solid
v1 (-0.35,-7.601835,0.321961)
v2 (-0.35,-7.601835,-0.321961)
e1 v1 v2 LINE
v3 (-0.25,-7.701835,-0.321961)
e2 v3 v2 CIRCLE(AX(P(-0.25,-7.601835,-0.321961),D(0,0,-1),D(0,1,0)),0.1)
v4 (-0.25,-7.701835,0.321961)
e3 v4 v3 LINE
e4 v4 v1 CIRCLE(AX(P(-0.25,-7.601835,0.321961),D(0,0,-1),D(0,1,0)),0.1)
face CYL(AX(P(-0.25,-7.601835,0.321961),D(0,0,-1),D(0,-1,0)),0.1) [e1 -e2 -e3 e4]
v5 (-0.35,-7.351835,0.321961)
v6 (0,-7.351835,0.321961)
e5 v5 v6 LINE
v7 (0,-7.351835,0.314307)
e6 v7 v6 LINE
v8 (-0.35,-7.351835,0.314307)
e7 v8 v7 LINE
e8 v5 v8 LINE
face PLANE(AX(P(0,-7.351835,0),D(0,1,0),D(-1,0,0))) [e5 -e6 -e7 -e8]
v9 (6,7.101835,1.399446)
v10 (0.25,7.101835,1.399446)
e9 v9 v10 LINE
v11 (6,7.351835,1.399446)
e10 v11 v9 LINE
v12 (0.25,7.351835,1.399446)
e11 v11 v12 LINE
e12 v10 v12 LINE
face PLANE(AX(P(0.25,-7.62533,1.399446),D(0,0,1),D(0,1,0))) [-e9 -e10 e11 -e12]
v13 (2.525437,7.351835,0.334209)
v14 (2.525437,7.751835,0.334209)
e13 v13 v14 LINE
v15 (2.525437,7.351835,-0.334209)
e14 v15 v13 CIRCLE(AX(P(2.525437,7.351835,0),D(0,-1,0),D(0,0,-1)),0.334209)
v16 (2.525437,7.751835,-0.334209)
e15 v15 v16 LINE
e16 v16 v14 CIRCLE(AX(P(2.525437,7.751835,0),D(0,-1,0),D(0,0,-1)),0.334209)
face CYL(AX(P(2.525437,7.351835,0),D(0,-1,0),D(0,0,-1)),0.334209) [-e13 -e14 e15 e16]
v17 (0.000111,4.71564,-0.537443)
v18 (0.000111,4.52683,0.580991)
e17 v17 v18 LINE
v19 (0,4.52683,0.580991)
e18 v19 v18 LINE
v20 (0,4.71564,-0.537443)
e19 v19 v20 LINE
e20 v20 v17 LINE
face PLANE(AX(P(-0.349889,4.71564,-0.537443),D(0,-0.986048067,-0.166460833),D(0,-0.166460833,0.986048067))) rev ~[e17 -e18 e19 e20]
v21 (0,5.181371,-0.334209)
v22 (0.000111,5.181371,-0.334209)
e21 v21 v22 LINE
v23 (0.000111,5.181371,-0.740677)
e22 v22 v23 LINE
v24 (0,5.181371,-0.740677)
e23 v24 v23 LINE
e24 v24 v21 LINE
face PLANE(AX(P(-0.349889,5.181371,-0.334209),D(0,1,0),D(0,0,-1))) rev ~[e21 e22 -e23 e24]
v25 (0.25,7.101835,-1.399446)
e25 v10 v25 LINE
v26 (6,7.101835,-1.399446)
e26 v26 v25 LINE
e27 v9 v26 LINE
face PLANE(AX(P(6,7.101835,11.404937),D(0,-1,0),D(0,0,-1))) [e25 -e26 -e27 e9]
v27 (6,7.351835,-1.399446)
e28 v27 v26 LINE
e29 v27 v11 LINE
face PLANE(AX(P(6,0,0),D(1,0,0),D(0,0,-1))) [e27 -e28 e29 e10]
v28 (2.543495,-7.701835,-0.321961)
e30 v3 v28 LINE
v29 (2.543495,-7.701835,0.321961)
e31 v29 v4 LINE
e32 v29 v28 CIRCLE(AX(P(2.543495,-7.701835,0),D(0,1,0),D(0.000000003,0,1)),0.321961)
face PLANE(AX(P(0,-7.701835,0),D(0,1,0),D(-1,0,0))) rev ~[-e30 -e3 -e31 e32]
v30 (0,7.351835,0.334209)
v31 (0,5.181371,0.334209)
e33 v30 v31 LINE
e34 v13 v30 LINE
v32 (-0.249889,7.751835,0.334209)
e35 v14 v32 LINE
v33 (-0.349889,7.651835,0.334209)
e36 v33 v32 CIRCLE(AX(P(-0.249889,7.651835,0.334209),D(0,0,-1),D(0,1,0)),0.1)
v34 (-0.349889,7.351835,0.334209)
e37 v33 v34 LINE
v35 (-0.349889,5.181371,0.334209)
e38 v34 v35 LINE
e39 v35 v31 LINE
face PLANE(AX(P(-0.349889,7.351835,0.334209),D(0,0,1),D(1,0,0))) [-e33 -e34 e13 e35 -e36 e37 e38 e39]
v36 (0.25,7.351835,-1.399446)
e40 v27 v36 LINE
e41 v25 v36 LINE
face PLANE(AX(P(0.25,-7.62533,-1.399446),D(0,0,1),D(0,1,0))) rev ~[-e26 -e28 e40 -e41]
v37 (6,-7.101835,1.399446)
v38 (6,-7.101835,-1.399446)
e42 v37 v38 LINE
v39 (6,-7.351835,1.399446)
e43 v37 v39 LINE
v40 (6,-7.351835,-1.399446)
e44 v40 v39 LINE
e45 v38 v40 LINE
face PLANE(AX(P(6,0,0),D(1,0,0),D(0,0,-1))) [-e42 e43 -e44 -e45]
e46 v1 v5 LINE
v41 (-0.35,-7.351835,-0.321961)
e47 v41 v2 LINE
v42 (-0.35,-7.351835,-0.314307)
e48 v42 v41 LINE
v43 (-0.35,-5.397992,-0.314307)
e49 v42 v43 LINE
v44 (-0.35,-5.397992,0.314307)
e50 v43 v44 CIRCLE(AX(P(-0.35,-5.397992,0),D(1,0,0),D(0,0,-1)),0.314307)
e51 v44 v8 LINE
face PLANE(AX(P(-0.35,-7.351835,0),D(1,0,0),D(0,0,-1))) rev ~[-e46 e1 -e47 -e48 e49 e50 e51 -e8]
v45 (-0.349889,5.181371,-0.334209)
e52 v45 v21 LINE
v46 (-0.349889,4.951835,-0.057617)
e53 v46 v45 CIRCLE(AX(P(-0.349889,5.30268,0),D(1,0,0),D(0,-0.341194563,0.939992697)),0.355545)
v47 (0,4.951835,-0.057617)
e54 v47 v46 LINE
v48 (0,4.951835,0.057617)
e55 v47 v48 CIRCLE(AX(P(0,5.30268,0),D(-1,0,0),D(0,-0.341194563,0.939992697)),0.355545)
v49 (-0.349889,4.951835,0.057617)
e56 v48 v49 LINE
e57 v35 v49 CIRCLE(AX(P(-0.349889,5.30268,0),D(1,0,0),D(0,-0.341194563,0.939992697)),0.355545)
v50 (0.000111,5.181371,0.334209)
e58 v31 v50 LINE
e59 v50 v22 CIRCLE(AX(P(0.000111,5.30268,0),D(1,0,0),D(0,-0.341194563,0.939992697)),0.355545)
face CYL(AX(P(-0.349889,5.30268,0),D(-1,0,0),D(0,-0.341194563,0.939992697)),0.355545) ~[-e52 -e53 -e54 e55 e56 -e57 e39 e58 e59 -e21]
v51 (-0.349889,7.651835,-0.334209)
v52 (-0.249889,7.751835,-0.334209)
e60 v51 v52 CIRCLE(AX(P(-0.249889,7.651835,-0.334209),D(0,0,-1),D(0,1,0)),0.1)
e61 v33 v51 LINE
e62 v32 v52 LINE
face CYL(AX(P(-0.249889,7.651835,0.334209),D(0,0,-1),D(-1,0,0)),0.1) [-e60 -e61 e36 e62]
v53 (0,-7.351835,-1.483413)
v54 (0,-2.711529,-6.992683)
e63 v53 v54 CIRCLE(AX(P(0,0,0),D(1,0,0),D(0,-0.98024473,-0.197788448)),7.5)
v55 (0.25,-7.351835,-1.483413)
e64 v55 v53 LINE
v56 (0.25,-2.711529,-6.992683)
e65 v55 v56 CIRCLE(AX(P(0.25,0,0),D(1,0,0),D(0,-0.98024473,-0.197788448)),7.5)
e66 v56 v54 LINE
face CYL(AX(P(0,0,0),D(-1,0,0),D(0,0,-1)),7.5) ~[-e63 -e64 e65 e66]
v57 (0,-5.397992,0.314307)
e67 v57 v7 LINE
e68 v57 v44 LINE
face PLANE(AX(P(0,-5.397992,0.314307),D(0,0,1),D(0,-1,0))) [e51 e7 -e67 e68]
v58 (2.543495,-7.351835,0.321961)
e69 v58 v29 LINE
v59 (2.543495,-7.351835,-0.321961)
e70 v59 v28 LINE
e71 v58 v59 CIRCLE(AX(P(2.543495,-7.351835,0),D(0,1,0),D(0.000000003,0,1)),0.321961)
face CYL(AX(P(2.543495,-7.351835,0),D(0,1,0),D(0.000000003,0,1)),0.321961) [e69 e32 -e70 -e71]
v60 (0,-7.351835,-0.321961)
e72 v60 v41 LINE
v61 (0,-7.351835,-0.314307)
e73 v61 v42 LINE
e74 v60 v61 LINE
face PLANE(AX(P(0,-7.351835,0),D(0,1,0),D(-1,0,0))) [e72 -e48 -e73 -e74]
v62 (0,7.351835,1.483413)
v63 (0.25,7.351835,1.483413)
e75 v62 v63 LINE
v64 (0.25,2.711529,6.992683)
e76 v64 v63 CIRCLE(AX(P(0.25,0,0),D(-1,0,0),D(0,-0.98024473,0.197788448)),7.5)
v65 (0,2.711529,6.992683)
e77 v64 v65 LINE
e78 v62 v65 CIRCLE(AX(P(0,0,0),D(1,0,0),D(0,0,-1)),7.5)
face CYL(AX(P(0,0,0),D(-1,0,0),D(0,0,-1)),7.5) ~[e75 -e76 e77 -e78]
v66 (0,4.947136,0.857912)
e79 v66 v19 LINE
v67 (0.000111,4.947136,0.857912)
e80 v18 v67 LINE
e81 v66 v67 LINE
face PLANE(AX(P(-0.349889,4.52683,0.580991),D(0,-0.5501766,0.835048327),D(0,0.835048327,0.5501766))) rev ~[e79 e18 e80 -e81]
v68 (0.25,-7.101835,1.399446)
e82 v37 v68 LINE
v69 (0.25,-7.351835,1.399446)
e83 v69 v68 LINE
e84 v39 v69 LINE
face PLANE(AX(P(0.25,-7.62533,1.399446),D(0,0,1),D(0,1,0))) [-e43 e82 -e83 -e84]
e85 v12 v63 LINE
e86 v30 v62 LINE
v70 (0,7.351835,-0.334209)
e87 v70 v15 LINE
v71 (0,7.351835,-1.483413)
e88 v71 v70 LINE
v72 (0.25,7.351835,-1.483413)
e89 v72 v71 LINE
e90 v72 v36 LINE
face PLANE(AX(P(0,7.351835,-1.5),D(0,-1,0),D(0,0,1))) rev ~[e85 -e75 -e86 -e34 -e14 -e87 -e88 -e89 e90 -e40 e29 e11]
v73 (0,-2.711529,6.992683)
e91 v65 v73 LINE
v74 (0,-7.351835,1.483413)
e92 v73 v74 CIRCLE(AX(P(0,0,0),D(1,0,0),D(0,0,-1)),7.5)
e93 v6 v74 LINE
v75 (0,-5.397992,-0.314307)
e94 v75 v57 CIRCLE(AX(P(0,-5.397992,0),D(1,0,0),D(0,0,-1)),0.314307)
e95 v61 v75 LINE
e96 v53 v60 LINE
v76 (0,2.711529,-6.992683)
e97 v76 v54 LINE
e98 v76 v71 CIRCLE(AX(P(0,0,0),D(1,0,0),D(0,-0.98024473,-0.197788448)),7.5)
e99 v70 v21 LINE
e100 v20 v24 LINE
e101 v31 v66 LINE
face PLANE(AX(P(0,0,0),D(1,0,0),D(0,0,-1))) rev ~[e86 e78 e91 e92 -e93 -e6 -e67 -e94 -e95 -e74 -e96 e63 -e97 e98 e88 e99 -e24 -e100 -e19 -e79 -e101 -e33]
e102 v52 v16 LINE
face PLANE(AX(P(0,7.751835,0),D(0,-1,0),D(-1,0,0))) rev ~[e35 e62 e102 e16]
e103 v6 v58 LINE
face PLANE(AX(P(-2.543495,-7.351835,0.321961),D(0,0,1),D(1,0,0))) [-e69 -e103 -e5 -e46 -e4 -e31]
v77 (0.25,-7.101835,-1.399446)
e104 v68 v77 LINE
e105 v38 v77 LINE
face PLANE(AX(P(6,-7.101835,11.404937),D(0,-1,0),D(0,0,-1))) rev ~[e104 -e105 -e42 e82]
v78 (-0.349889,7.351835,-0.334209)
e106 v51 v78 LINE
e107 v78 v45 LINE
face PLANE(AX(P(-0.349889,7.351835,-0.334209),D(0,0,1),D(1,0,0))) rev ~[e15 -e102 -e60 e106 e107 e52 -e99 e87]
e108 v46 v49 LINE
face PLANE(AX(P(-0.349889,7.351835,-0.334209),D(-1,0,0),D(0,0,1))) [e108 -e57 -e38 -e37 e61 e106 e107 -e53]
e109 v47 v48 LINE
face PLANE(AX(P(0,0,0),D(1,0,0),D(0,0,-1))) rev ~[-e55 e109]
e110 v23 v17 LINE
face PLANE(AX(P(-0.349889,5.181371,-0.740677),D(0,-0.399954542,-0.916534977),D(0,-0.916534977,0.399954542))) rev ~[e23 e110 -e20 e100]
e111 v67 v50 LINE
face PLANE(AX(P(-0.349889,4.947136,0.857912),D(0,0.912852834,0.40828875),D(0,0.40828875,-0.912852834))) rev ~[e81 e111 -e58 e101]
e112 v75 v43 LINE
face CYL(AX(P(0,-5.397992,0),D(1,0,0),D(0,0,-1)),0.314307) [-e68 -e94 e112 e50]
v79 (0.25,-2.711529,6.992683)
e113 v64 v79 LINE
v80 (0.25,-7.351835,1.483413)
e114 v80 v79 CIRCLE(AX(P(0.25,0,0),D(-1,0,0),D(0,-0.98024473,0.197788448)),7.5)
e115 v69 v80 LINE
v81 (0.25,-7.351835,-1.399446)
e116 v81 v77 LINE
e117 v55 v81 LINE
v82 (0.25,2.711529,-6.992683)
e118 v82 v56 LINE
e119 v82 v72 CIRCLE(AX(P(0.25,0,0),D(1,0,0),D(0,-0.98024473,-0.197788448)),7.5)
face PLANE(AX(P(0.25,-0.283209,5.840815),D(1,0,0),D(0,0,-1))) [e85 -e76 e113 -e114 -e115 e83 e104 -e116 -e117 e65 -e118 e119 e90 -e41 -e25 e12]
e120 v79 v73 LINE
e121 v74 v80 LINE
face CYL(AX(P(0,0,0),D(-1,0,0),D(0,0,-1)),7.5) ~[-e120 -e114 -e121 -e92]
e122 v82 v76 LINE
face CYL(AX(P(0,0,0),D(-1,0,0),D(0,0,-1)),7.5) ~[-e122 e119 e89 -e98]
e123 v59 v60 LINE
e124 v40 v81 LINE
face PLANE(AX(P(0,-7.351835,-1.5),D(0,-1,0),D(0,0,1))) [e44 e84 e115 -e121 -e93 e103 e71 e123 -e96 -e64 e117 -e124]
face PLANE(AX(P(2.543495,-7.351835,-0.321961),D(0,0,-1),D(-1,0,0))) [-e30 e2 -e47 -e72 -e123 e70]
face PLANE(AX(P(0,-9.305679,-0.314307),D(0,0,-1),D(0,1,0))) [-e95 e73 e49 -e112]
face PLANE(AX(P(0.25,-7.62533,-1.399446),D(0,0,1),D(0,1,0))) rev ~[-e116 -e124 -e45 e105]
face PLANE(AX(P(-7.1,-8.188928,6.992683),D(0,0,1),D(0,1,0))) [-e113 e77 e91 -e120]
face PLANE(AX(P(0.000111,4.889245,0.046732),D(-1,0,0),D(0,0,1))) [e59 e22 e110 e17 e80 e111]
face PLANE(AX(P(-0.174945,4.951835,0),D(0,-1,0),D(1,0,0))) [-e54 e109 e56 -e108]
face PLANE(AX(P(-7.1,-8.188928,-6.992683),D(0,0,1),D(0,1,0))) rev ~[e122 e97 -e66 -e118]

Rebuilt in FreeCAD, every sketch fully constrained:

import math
import FreeCAD as App
import Part
import Sketcher

V = App.Vector
Q = App.Units.Quantity


def edges_at(feature, points):
    """Names of the edges that pass closest to the given points."""
    edges = feature.Shape.Edges
    near = lambda p: min(range(len(edges)), key=lambda i: edges[i].distToShape(Part.Vertex(*p))[0])
    return sorted({f"Edge{near(p) + 1}" for p in points})

doc = App.newDocument("Part")
body = doc.addObject("PartDesign::Body", "Body")

# Sketch on YZ plane
sketch1 = body.newObject("Sketcher::SketchObject", "Sketch")
sketch1.AttachmentSupport = (doc.getObject("YZ_Plane"), [""])
sketch1.MapMode = "FlatFace"
sketch1.addGeometry(Part.Circle(V(0, 0, 0), V(0, 0, 1), 8), False)
sketch1.addConstraint(Sketcher.Constraint("Coincident", 0, 3, -1, 1))
sketch1.addConstraint(Sketcher.Constraint("Diameter", 0, Q("15 mm")))
pad1 = body.newObject("PartDesign::Pad", "Pad")
pad1.Profile = sketch1
pad1.Length = 6

# Sketch on YZ plane
sketch2 = body.newObject("Sketcher::SketchObject", "Sketch001")
sketch2.AttachmentSupport = (doc.getObject("YZ_Plane"), [""])
sketch2.MapMode = "FlatFace"
sketch2.addGeometry(Part.LineSegment(V(7.82, -1.5, 0), V(7.35, -1.5, 0)), False)
sketch2.addGeometry(Part.LineSegment(V(7.35, -1.5, 0), V(7.35, 1.5, 0)), False)
sketch2.addGeometry(Part.LineSegment(V(7.35, 1.5, 0), V(7.82, 1.5, 0)), False)
sketch2.addGeometry(Part.LineSegment(V(7.82, 1.5, 0), V(7.82, -1.5, 0)), False)
sketch2.addGeometry(Part.LineSegment(V(-7.35, -1.5, 0), V(-7.82, -1.5, 0)), False)
sketch2.addGeometry(Part.LineSegment(V(-7.82, -1.5, 0), V(-7.82, 1.5, 0)), False)
sketch2.addGeometry(Part.LineSegment(V(-7.82, 1.5, 0), V(-7.35, 1.5, 0)), False)
sketch2.addGeometry(Part.LineSegment(V(-7.35, 1.5, 0), V(-7.35, -1.5, 0)), False)
sketch2.addConstraint(Sketcher.Constraint("Coincident", 0, 2, 1, 1))
sketch2.addConstraint(Sketcher.Constraint("Coincident", 1, 2, 2, 1))
sketch2.addConstraint(Sketcher.Constraint("Coincident", 2, 2, 3, 1))
sketch2.addConstraint(Sketcher.Constraint("Coincident", 3, 2, 0, 1))
sketch2.addConstraint(Sketcher.Constraint("Coincident", 4, 2, 5, 1))
sketch2.addConstraint(Sketcher.Constraint("Coincident", 5, 2, 6, 1))
sketch2.addConstraint(Sketcher.Constraint("Coincident", 6, 2, 7, 1))
sketch2.addConstraint(Sketcher.Constraint("Coincident", 7, 2, 4, 1))
sketch2.addConstraint(Sketcher.Constraint("Horizontal", 0))
sketch2.addConstraint(Sketcher.Constraint("Vertical", 1))
sketch2.addConstraint(Sketcher.Constraint("Horizontal", 2))
sketch2.addConstraint(Sketcher.Constraint("Vertical", 3))
sketch2.addConstraint(Sketcher.Constraint("Horizontal", 4))
sketch2.addConstraint(Sketcher.Constraint("Vertical", 5))
sketch2.addConstraint(Sketcher.Constraint("Horizontal", 6))
sketch2.addConstraint(Sketcher.Constraint("Vertical", 7))
sketch2.addConstraint(Sketcher.Constraint("Symmetric", 2, 2, 4, 2, -1, 1))
sketch2.addConstraint(Sketcher.Constraint("Symmetric", 0, 2, 6, 2, -1, 1))
sketch2.addConstraint(Sketcher.Constraint("Horizontal", 3, 2, 4, 2))
sketch2.addConstraint(Sketcher.Constraint("DistanceY", 1, 1, 1, 2, Q("3 mm")))
sketch2.addConstraint(Sketcher.Constraint("DistanceX", 0, 2, 0, 1, Q("0.472136 mm")))
sketch2.addConstraint(Sketcher.Constraint("DistanceX", -1, 1, 2, 2, Q("7.823972 mm")))
pocket1 = body.newObject("PartDesign::Pocket", "Pocket")
pocket1.Profile = sketch2
pocket1.Length = 6
pocket1.Reversed = True

# Sketch on YZ plane
sketch3 = body.newObject("Sketcher::SketchObject", "Sketch002")
sketch3.AttachmentSupport = (doc.getObject("YZ_Plane"), [""])
sketch3.MapMode = "FlatFace"
sketch3.addGeometry(Part.LineSegment(V(7.35, -1.48, 0), V(7.1, -1.48, 0)), False)
sketch3.addGeometry(Part.LineSegment(V(7.1, -1.48, 0), V(7.1, 1.48, 0)), False)
sketch3.addGeometry(Part.LineSegment(V(7.1, 1.48, 0), V(7.35, 1.48, 0)), False)
sketch3.addGeometry(Part.LineSegment(V(7.35, 1.48, 0), V(7.35, -1.48, 0)), False)
sketch3.addGeometry(Part.LineSegment(V(-7.1, -1.48, 0), V(-7.35, -1.48, 0)), False)
sketch3.addGeometry(Part.LineSegment(V(-7.35, -1.48, 0), V(-7.35, 1.48, 0)), False)
sketch3.addGeometry(Part.LineSegment(V(-7.35, 1.48, 0), V(-7.1, 1.48, 0)), False)
sketch3.addGeometry(Part.LineSegment(V(-7.1, 1.48, 0), V(-7.1, -1.48, 0)), False)
sketch3.addConstraint(Sketcher.Constraint("Coincident", 0, 2, 1, 1))
sketch3.addConstraint(Sketcher.Constraint("Coincident", 1, 2, 2, 1))
sketch3.addConstraint(Sketcher.Constraint("Coincident", 2, 2, 3, 1))
sketch3.addConstraint(Sketcher.Constraint("Coincident", 3, 2, 0, 1))
sketch3.addConstraint(Sketcher.Constraint("Coincident", 4, 2, 5, 1))
sketch3.addConstraint(Sketcher.Constraint("Coincident", 5, 2, 6, 1))
sketch3.addConstraint(Sketcher.Constraint("Coincident", 6, 2, 7, 1))
sketch3.addConstraint(Sketcher.Constraint("Coincident", 7, 2, 4, 1))
sketch3.addConstraint(Sketcher.Constraint("Horizontal", 0))
sketch3.addConstraint(Sketcher.Constraint("Vertical", 1))
sketch3.addConstraint(Sketcher.Constraint("Horizontal", 2))
sketch3.addConstraint(Sketcher.Constraint("Vertical", 3))
sketch3.addConstraint(Sketcher.Constraint("Horizontal", 4))
sketch3.addConstraint(Sketcher.Constraint("Vertical", 5))
sketch3.addConstraint(Sketcher.Constraint("Horizontal", 6))
sketch3.addConstraint(Sketcher.Constraint("Vertical", 7))
sketch3.addConstraint(Sketcher.Constraint("Symmetric", 2, 2, 4, 2, -1, 1))
sketch3.addConstraint(Sketcher.Constraint("Symmetric", 0, 2, 6, 2, -1, 1))
sketch3.addConstraint(Sketcher.Constraint("Horizontal", 3, 2, 4, 2))
sketch3.addConstraint(Sketcher.Constraint("DistanceX", 0, 2, 0, 1, Q("0.25 mm")))
sketch3.addConstraint(Sketcher.Constraint("DistanceY", 1, 1, 1, 2, Q("2.966827 mm")))
sketch3.addConstraint(Sketcher.Constraint("DistanceX", 4, 2, 0, 2, Q("14.453671 mm")))
pad2 = body.newObject("PartDesign::Pad", "Pad001")
pad2.Profile = sketch3
pad2.Length = 5.75

# Sketch on YZ plane
sketch4 = body.newObject("Sketcher::SketchObject", "Sketch003")
sketch4.AttachmentSupport = (doc.getObject("YZ_Plane"), [""])
sketch4.MapMode = "FlatFace"
sketch4.AttachmentOffset = App.Placement(V(0, 0, 6), App.Rotation())
sketch4.addGeometry(Part.LineSegment(V(7, 11, 0), V(-7, 11, 0)), False)
sketch4.addGeometry(Part.LineSegment(V(-7, 11, 0), V(-7, -11, 0)), False)
sketch4.addGeometry(Part.LineSegment(V(-7, -11, 0), V(7, -11, 0)), False)
sketch4.addGeometry(Part.LineSegment(V(7, -11, 0), V(7, 11, 0)), False)
sketch4.addConstraint(Sketcher.Constraint("Coincident", 0, 2, 1, 1))
sketch4.addConstraint(Sketcher.Constraint("Coincident", 1, 2, 2, 1))
sketch4.addConstraint(Sketcher.Constraint("Coincident", 2, 2, 3, 1))
sketch4.addConstraint(Sketcher.Constraint("Coincident", 3, 2, 0, 1))
sketch4.addConstraint(Sketcher.Constraint("Horizontal", 0))
sketch4.addConstraint(Sketcher.Constraint("Vertical", 1))
sketch4.addConstraint(Sketcher.Constraint("Horizontal", 2))
sketch4.addConstraint(Sketcher.Constraint("Vertical", 3))
sketch4.addConstraint(Sketcher.Constraint("Symmetric", 0, 2, 2, 2, -1, 1))
sketch4.addConstraint(Sketcher.Constraint("DistanceX", 0, 2, 0, 1, Q("14.203671 mm")))
sketch4.addConstraint(Sketcher.Constraint("DistanceY", 1, 2, 1, 1, Q("22.809874 mm")))
pocket2 = body.newObject("PartDesign::Pocket", "Pocket001")
pocket2.Profile = sketch4
pocket2.Length = 5.75

# Sketch on YZ plane
sketch5 = body.newObject("Sketcher::SketchObject", "Sketch004")
sketch5.AttachmentSupport = (doc.getObject("YZ_Plane"), [""])
sketch5.MapMode = "FlatFace"
sketch5.AttachmentOffset = App.Placement(V(0, 0, 0.25), App.Rotation())
sketch5.addGeometry(Part.LineSegment(V(7.6, -1.4, 0), V(-7.6, -1.4, 0)), False)
sketch5.addGeometry(Part.LineSegment(V(-7.6, -1.4, 0), V(-7.6, -8.7, 0)), False)
sketch5.addGeometry(Part.LineSegment(V(-7.6, -8.7, 0), V(7.6, -8.7, 0)), False)
sketch5.addGeometry(Part.LineSegment(V(7.6, -8.7, 0), V(7.6, -1.4, 0)), False)
sketch5.addGeometry(Part.LineSegment(V(-7.6, 1.4, 0), V(7.6, 1.4, 0)), False)
sketch5.addGeometry(Part.LineSegment(V(7.6, 1.4, 0), V(7.4, 5.2, 0)), False)
sketch5.addGeometry(Part.LineSegment(V(7.4, 5.2, 0), V(8, 6.7, 0)), False)
sketch5.addGeometry(Part.LineSegment(V(8, 6.7, 0), V(6.8, 9.5, 0)), False)
sketch5.addGeometry(Part.LineSegment(V(6.8, 9.5, 0), V(-7.2, 11.4, 0)), False)
sketch5.addGeometry(Part.LineSegment(V(-7.2, 11.4, 0), V(-7.6, 1.4, 0)), False)
sketch5.addConstraint(Sketcher.Constraint("Coincident", 0, 2, 1, 1))
sketch5.addConstraint(Sketcher.Constraint("Coincident", 1, 2, 2, 1))
sketch5.addConstraint(Sketcher.Constraint("Coincident", 2, 2, 3, 1))
sketch5.addConstraint(Sketcher.Constraint("Coincident", 3, 2, 0, 1))
sketch5.addConstraint(Sketcher.Constraint("Coincident", 4, 2, 5, 1))
sketch5.addConstraint(Sketcher.Constraint("Coincident", 5, 2, 6, 1))
sketch5.addConstraint(Sketcher.Constraint("Coincident", 6, 2, 7, 1))
sketch5.addConstraint(Sketcher.Constraint("Coincident", 7, 2, 8, 1))
sketch5.addConstraint(Sketcher.Constraint("Coincident", 8, 2, 9, 1))
sketch5.addConstraint(Sketcher.Constraint("Coincident", 9, 2, 4, 1))
sketch5.addConstraint(Sketcher.Constraint("Horizontal", 0))
sketch5.addConstraint(Sketcher.Constraint("Vertical", 1))
sketch5.addConstraint(Sketcher.Constraint("Horizontal", 2))
sketch5.addConstraint(Sketcher.Constraint("Vertical", 3))
sketch5.addConstraint(Sketcher.Constraint("Horizontal", 4))
sketch5.addConstraint(Sketcher.Constraint("Symmetric", 0, 2, 4, 2, -1, 1))
sketch5.addConstraint(Sketcher.Constraint("Vertical", 3, 2, 4, 2))
sketch5.addConstraint(Sketcher.Constraint("Vertical", 1, 2, 9, 2))
sketch5.addConstraint(Sketcher.Constraint("DistanceX", 0, 2, 0, 1, Q("15.25066 mm")))
sketch5.addConstraint(Sketcher.Constraint("DistanceY", -1, 1, 8, 2, Q("11.382899 mm")))
sketch5.addConstraint(Sketcher.Constraint("Distance", 6, Q("1.659641 mm")))
sketch5.addConstraint(Sketcher.Constraint("Distance", 9, Q("9.99223 mm")))
sketch5.addConstraint(Sketcher.Constraint("DistanceY", 1, 2, 1, 1, Q("7.250675 mm")))
sketch5.addConstraint(Sketcher.Constraint("DistanceY", 1, 2, -1, 1, Q("8.650121 mm")))
sketch5.addConstraint(Sketcher.Constraint("DistanceY", -1, 1, 6, 2, Q("6.710731 mm")))
sketch5.addConstraint(Sketcher.Constraint("DistanceY", 4, 2, 5, 2, Q("3.76626 mm")))
sketch5.addConstraint(Sketcher.Constraint("DistanceX", 7, 2, 6, 2, Q("1.212119 mm")))
sketch5.addConstraint(Sketcher.Constraint("DistanceY", 5, 2, 7, 2, Q("4.321879 mm")))
sketch5.addConstraint(Sketcher.Constraint("Distance", 5, Q("3.773362 mm")))
pocket3 = body.newObject("PartDesign::Pocket", "Pocket002")
pocket3.Profile = sketch5
pocket3.Length = 10.75
pocket3.Reversed = True

# Sketch on XZ plane
sketch6 = body.newObject("Sketcher::SketchObject", "Sketch005")
sketch6.AttachmentSupport = (doc.getObject("XZ_Plane"), [""])
sketch6.MapMode = "FlatFace"
sketch6.AttachmentOffset = App.Placement(V(0, 0, 7.351835), App.Rotation())
sketch6.addGeometry(Part.LineSegment(V(2.54, 0.32, 0), V(-2.54, 0.32, 0)), False)
sketch6.addGeometry(Part.ArcOfCircle(Part.Circle(V(-2.54, 0, 0), V(0, 0, 1), 0.32), math.radians(90), math.radians(270)), False)
sketch6.addGeometry(Part.LineSegment(V(-2.54, -0.32, 0), V(2.54, -0.32, 0)), False)
sketch6.addGeometry(Part.ArcOfCircle(Part.Circle(V(2.54, 0, 0), V(0, 0, 1), 0.32), math.radians(-90), math.radians(90)), False)
sketch6.addConstraint(Sketcher.Constraint("Tangent", 0, 2, 1, 1))
sketch6.addConstraint(Sketcher.Constraint("Tangent", 1, 2, 2, 1))
sketch6.addConstraint(Sketcher.Constraint("Tangent", 2, 2, 3, 1))
sketch6.addConstraint(Sketcher.Constraint("Tangent", 3, 2, 0, 1))
sketch6.addConstraint(Sketcher.Constraint("Horizontal", 0))
sketch6.addConstraint(Sketcher.Constraint("Horizontal", 2))
sketch6.addConstraint(Sketcher.Constraint("Symmetric", 1, 3, 3, 3, -1, 1))
sketch6.addConstraint(Sketcher.Constraint("Radius", 1, Q("0.321961 mm")))
sketch6.addConstraint(Sketcher.Constraint("DistanceX", 0, 2, 0, 1, Q("5.08699 mm")))
pad3 = body.newObject("PartDesign::Pad", "Pad002")
pad3.Profile = sketch6
pad3.Length = 0.35

# Sketch on YZ plane
sketch7 = body.newObject("Sketcher::SketchObject", "Sketch006")
sketch7.AttachmentSupport = (doc.getObject("YZ_Plane"), [""])
sketch7.MapMode = "FlatFace"
sketch7.addGeometry(Part.LineSegment(V(-5.4, -0.31, 0), V(-9.31, -0.31, 0)), False)
sketch7.addGeometry(Part.ArcOfCircle(Part.Circle(V(-9.31, 0, 0), V(0, 0, 1), 0.31), math.radians(90), math.radians(270)), False)
sketch7.addGeometry(Part.LineSegment(V(-9.31, 0.31, 0), V(-5.4, 0.31, 0)), False)
sketch7.addGeometry(Part.ArcOfCircle(Part.Circle(V(-5.4, 0, 0), V(0, 0, 1), 0.31), math.radians(-90), math.radians(90)), False)
sketch7.addConstraint(Sketcher.Constraint("Tangent", 0, 2, 1, 2))
sketch7.addConstraint(Sketcher.Constraint("Tangent", 1, 1, 2, 1))
sketch7.addConstraint(Sketcher.Constraint("Tangent", 2, 2, 3, 2))
sketch7.addConstraint(Sketcher.Constraint("Tangent", 3, 1, 0, 1))
sketch7.addConstraint(Sketcher.Constraint("Horizontal", 0))
sketch7.addConstraint(Sketcher.Constraint("Horizontal", 2))
sketch7.addConstraint(Sketcher.Constraint("PointOnObject", 1, 3, -1))
sketch7.addConstraint(Sketcher.Constraint("Radius", 1, Q("0.314307 mm")))
sketch7.addConstraint(Sketcher.Constraint("DistanceX", 0, 2, 0, 1, Q("3.907687 mm")))
sketch7.addConstraint(Sketcher.Constraint("DistanceX", 1, 3, -1, 1, Q("9.305679 mm")))
pad4 = body.newObject("PartDesign::Pad", "Pad003")
pad4.Profile = sketch7
pad4.Length = 0.35
pad4.Reversed = True

# Sketch on XY plane
sketch8 = body.newObject("Sketcher::SketchObject", "Sketch007")
sketch8.AttachmentSupport = (doc.getObject("XY_Plane"), [""])
sketch8.MapMode = "FlatFace"
sketch8.AttachmentOffset = App.Placement(V(0, 0, -0.321961), App.Rotation())
sketch8.addGeometry(Part.LineSegment(V(-0.3, -4.8, 0), V(-0.3, -7.7, 0)), False)
sketch8.addGeometry(Part.LineSegment(V(-0.3, -7.7, 0), V(-1.1, -8.4, 0)), False)
sketch8.addGeometry(Part.LineSegment(V(-1.1, -8.4, 0), V(-3.7, -8.1, 0)), False)
sketch8.addGeometry(Part.LineSegment(V(-3.7, -8.1, 0), V(-3.8, -6.8, 0)), False)
sketch8.addGeometry(Part.LineSegment(V(-3.8, -6.8, 0), V(-0.3, -4.8, 0)), False)
sketch8.addConstraint(Sketcher.Constraint("Coincident", 0, 2, 1, 1))
sketch8.addConstraint(Sketcher.Constraint("Coincident", 1, 2, 2, 1))
sketch8.addConstraint(Sketcher.Constraint("Coincident", 2, 2, 3, 1))
sketch8.addConstraint(Sketcher.Constraint("Coincident", 3, 2, 4, 1))
sketch8.addConstraint(Sketcher.Constraint("Coincident", 4, 2, 0, 1))
sketch8.addConstraint(Sketcher.Constraint("Vertical", 0))
sketch8.addConstraint(Sketcher.Constraint("Angle", 1, Q("-135 deg")))
sketch8.addConstraint(Sketcher.Constraint("DistanceX", 0, 2, -1, 1, Q("0.35 mm")))
sketch8.addConstraint(Sketcher.Constraint("DistanceY", 2, 2, 3, 2, Q("1.2786 mm")))
sketch8.addConstraint(Sketcher.Constraint("Distance", 4, Q("3.986541 mm")))
sketch8.addConstraint(Sketcher.Constraint("DistanceY", 0, 2, 0, 1, Q("2.888545 mm")))
sketch8.addConstraint(Sketcher.Constraint("DistanceX", 1, 2, -1, 1, Q("1.083229 mm")))
sketch8.addConstraint(Sketcher.Constraint("DistanceY", 2, 2, -1, 1, Q("8.06845 mm")))
sketch8.addConstraint(Sketcher.Constraint("DistanceX", 3, 2, -1, 1, Q("3.81204 mm")))
sketch8.addConstraint(Sketcher.Constraint("Distance", 2, Q("2.643985 mm")))
pocket4 = body.newObject("PartDesign::Pocket", "Pocket003")
pocket4.Profile = sketch8
pocket4.Type = "ThroughAll"
pocket4.Midplane = True

# Sketch on XY plane
sketch9 = body.newObject("Sketcher::SketchObject", "Sketch008")
sketch9.AttachmentSupport = (doc.getObject("XY_Plane"), [""])
sketch9.MapMode = "FlatFace"
sketch9.AttachmentOffset = App.Placement(V(0, 0, -0.314307), App.Rotation())
sketch9.addGeometry(Part.LineSegment(V(-0.859567, -7.701835, 0), V(0.161358, -7.701835, 0)), False)
sketch9.addGeometry(Part.LineSegment(V(0.161358, -7.701835, 0), V(1.096747, -10.331004, 0)), False)
sketch9.addGeometry(Part.LineSegment(V(1.096747, -10.331004, 0), V(-0.859567, -10.40905, 0)), False)
sketch9.addGeometry(Part.LineSegment(V(-0.859567, -10.40905, 0), V(-0.859567, -7.701835, 0)), False)
sketch9.addConstraint(Sketcher.Constraint("Coincident", 0, 2, 1, 1))
sketch9.addConstraint(Sketcher.Constraint("Coincident", 1, 2, 2, 1))
sketch9.addConstraint(Sketcher.Constraint("Coincident", 2, 2, 3, 1))
sketch9.addConstraint(Sketcher.Constraint("Coincident", 3, 2, 0, 1))
sketch9.addConstraint(Sketcher.Constraint("Horizontal", 0))
sketch9.addConstraint(Sketcher.Constraint("Vertical", 3))
sketch9.addConstraint(Sketcher.Constraint("Distance", 2, Q("1.957871 mm")))
sketch9.addConstraint(Sketcher.Constraint("DistanceX", 0, 1, 0, 2, Q("1.020925 mm")))
sketch9.addConstraint(Sketcher.Constraint("DistanceY", 3, 1, 3, 2, Q("2.707215 mm")))
sketch9.addConstraint(Sketcher.Constraint("DistanceX", -1, 1, 0, 2, Q("0.161358 mm")))
sketch9.addConstraint(Sketcher.Constraint("DistanceY", 2, 2, -1, 1, Q("10.40905 mm")))
sketch9.addConstraint(Sketcher.Constraint("DistanceX", 0, 2, 1, 2, Q("0.935389 mm")))
pocket5 = body.newObject("PartDesign::Pocket", "Pocket004")
pocket5.Profile = sketch9
pocket5.Type = "ThroughAll"
pocket5.Midplane = True
doc.recompute()

fillet = body.newObject("PartDesign::Fillet", "Fillet")
fillet.Base = (pocket5, edges_at(pocket5, [(-0.35, -7.702, 0)]))
fillet.Radius = 0.1

# Sketch on XZ plane
sketch10 = body.newObject("Sketcher::SketchObject", "Sketch009")
sketch10.AttachmentSupport = (doc.getObject("XZ_Plane"), [""])
sketch10.MapMode = "FlatFace"
sketch10.AttachmentOffset = App.Placement(V(0, 0, -7.351835), App.Rotation())
sketch10.addGeometry(Part.LineSegment(V(2.53, -0.33, 0), V(-2.53, -0.33, 0)), False)
sketch10.addGeometry(Part.ArcOfCircle(Part.Circle(V(-2.53, 0, 0), V(0, 0, 1), 0.33), math.radians(90), math.radians(270)), False)
sketch10.addGeometry(Part.LineSegment(V(-2.53, 0.33, 0), V(2.53, 0.33, 0)), False)
sketch10.addGeometry(Part.ArcOfCircle(Part.Circle(V(2.53, 0, 0), V(0, 0, 1), 0.33), math.radians(-90), math.radians(90)), False)
sketch10.addConstraint(Sketcher.Constraint("Tangent", 0, 2, 1, 2))
sketch10.addConstraint(Sketcher.Constraint("Tangent", 1, 1, 2, 1))
sketch10.addConstraint(Sketcher.Constraint("Tangent", 2, 2, 3, 2))
sketch10.addConstraint(Sketcher.Constraint("Tangent", 3, 1, 0, 1))
sketch10.addConstraint(Sketcher.Constraint("Horizontal", 0))
sketch10.addConstraint(Sketcher.Constraint("Horizontal", 2))
sketch10.addConstraint(Sketcher.Constraint("Symmetric", 1, 3, 3, 3, -1, 1))
sketch10.addConstraint(Sketcher.Constraint("Radius", 1, Q("0.334209 mm")))
sketch10.addConstraint(Sketcher.Constraint("DistanceX", 0, 2, 0, 1, Q("5.050875 mm")))
pad5 = body.newObject("PartDesign::Pad", "Pad004")
pad5.Profile = sketch10
pad5.Length = 0.4
pad5.Reversed = True

# Sketch on XZ plane
sketch11 = body.newObject("Sketcher::SketchObject", "Sketch010")
sketch11.AttachmentSupport = (doc.getObject("XZ_Plane"), [""])
sketch11.MapMode = "FlatFace"
sketch11.AttachmentOffset = App.Placement(V(0, 0, -7.751835), App.Rotation())
sketch11.addGeometry(Part.LineSegment(V(-0.35, 0.33, 0), V(-0.35, -0.54, 0)), False)
sketch11.addGeometry(Part.LineSegment(V(-0.35, -0.54, 0), V(-0.76, -0.57, 0)), False)
sketch11.addGeometry(Part.LineSegment(V(-0.76, -0.57, 0), V(-3.13, -0.42, 0)), False)
sketch11.addGeometry(Part.LineSegment(V(-3.13, -0.42, 0), V(-3.23, 0.85, 0)), False)
sketch11.addGeometry(Part.LineSegment(V(-3.23, 0.85, 0), V(0, 1.01, 0)), False)
sketch11.addGeometry(Part.LineSegment(V(0, 1.01, 0), V(-0.35, 0.33, 0)), False)
sketch11.addConstraint(Sketcher.Constraint("Coincident", 0, 2, 1, 1))
sketch11.addConstraint(Sketcher.Constraint("Coincident", 1, 2, 2, 1))
sketch11.addConstraint(Sketcher.Constraint("Coincident", 2, 2, 3, 1))
sketch11.addConstraint(Sketcher.Constraint("Coincident", 3, 2, 4, 1))
sketch11.addConstraint(Sketcher.Constraint("Coincident", 4, 2, 5, 1))
sketch11.addConstraint(Sketcher.Constraint("Coincident", 5, 2, 0, 1))
sketch11.addConstraint(Sketcher.Constraint("Vertical", 0))
sketch11.addConstraint(Sketcher.Constraint("PointOnObject", 4, 2, -2))
sketch11.addConstraint(Sketcher.Constraint("Perpendicular", 1, 3))
sketch11.addConstraint(Sketcher.Constraint("DistanceX", 3, 2, 0, 2, Q("2.881698 mm")))
sketch11.addConstraint(Sketcher.Constraint("DistanceY", 0, 2, 3, 2, Q("1.388398 mm")))
sketch11.addConstraint(Sketcher.Constraint("Distance", 2, Q("2.374869 mm")))
sketch11.addConstraint(Sketcher.Constraint("Distance", 3, Q("1.26889 mm")))
sketch11.addConstraint(Sketcher.Constraint("Distance", 4, Q("3.23583 mm")))
sketch11.addConstraint(Sketcher.Constraint("DistanceY", 0, 2, 0, 1, Q("0.875157 mm")))
sketch11.addConstraint(Sketcher.Constraint("DistanceX", 0, 2, -1, 1, Q("0.349889 mm")))
sketch11.addConstraint(Sketcher.Constraint("DistanceX", 1, 2, -1, 1, Q("0.764472 mm")))
sketch11.addConstraint(Sketcher.Constraint("DistanceY", 1, 2, -1, 1, Q("0.572838 mm")))
pocket6 = body.newObject("PartDesign::Pocket", "Pocket005")
pocket6.Profile = sketch11
pocket6.Length = 0.4
pocket6.Reversed = True

# Sketch on XZ plane
sketch12 = body.newObject("Sketcher::SketchObject", "Sketch011")
sketch12.AttachmentSupport = (doc.getObject("XZ_Plane"), [""])
sketch12.MapMode = "FlatFace"
sketch12.AttachmentOffset = App.Placement(V(0, 0, -7.351835), App.Rotation())
sketch12.addGeometry(Part.LineSegment(V(-0.35, 0.33, 0), V(-0.35, -0.33, 0)), False)
sketch12.addGeometry(Part.LineSegment(V(-0.35, -0.33, 0), V(0, -0.33, 0)), False)
sketch12.addGeometry(Part.LineSegment(V(0, -0.33, 0), V(0, 0.33, 0)), False)
sketch12.addGeometry(Part.LineSegment(V(0, 0.33, 0), V(-0.35, 0.33, 0)), False)
sketch12.addConstraint(Sketcher.Constraint("Coincident", 0, 2, 1, 1))
sketch12.addConstraint(Sketcher.Constraint("Coincident", 1, 2, 2, 1))
sketch12.addConstraint(Sketcher.Constraint("Coincident", 2, 2, 3, 1))
sketch12.addConstraint(Sketcher.Constraint("Coincident", 3, 2, 0, 1))
sketch12.addConstraint(Sketcher.Constraint("Vertical", 0))
sketch12.addConstraint(Sketcher.Constraint("Horizontal", 1))
sketch12.addConstraint(Sketcher.Constraint("Vertical", 2))
sketch12.addConstraint(Sketcher.Constraint("Horizontal", 3))
sketch12.addConstraint(Sketcher.Constraint("Symmetric", 1, 2, 2, 2, -1, 1))
sketch12.addConstraint(Sketcher.Constraint("DistanceX", 1, 1, 1, 2, Q("0.349889 mm")))
sketch12.addConstraint(Sketcher.Constraint("DistanceY", 0, 2, 0, 1, Q("0.668419 mm")))
pad6 = body.newObject("PartDesign::Pad", "Pad005")
pad6.Profile = sketch12
pad6.Length = 2.4
doc.recompute()

fillet2 = body.newObject("PartDesign::Fillet", "Fillet001")
fillet2.Base = (pad6, edges_at(pad6, [(-0.35, 7.752, 0)]))
fillet2.Radius = 0.1

# Sketch on YZ plane
sketch13 = body.newObject("Sketcher::SketchObject", "Sketch012")
sketch13.AttachmentSupport = (doc.getObject("YZ_Plane"), [""])
sketch13.MapMode = "FlatFace"
sketch13.AttachmentOffset = App.Placement(V(0, 0, -0.349889), App.Rotation())
sketch13.addGeometry(Part.LineSegment(V(5.18, -0.33, 0), V(5.18, -0.74, 0)), False)
sketch13.addGeometry(Part.LineSegment(V(5.18, -0.74, 0), V(4.72, -0.54, 0)), False)
sketch13.addGeometry(Part.LineSegment(V(4.72, -0.54, 0), V(4.53, 0.58, 0)), False)
sketch13.addGeometry(Part.LineSegment(V(4.53, 0.58, 0), V(4.95, 0.86, 0)), False)
sketch13.addGeometry(Part.LineSegment(V(4.95, 0.86, 0), V(5.18, 0.33, 0)), False)
sketch13.addGeometry(Part.ArcOfCircle(Part.Circle(V(5.3, 0, 0), V(0, 0, 1), 0.36), math.radians(110), math.radians(250)), False)
sketch13.addConstraint(Sketcher.Constraint("Coincident", 0, 2, 1, 1))
sketch13.addConstraint(Sketcher.Constraint("Coincident", 1, 2, 2, 1))
sketch13.addConstraint(Sketcher.Constraint("Coincident", 2, 2, 3, 1))
sketch13.addConstraint(Sketcher.Constraint("Coincident", 3, 2, 4, 1))
sketch13.addConstraint(Sketcher.Constraint("Coincident", 4, 2, 5, 1))
sketch13.addConstraint(Sketcher.Constraint("Coincident", 5, 2, 0, 1))
sketch13.addConstraint(Sketcher.Constraint("Vertical", 0))
sketch13.addConstraint(Sketcher.Constraint("Symmetric", 4, 2, 5, 2, -1))
sketch13.addConstraint(Sketcher.Constraint("Radius", 5, Q("0.355545 mm")))
sketch13.addConstraint(Sketcher.Constraint("Distance", 4, Q("0.573699 mm")))
sketch13.addConstraint(Sketcher.Constraint("DistanceY", 0, 2, 0, 1, Q("0.406468 mm")))
sketch13.addConstraint(Sketcher.Constraint("DistanceY", 5, 2, 2, 2, Q("0.9152 mm")))
sketch13.addConstraint(Sketcher.Constraint("Distance", 2, Q("1.134259 mm")))
sketch13.addConstraint(Sketcher.Constraint("Distance", 3, Q("0.503331 mm")))
sketch13.addConstraint(Sketcher.Constraint("DistanceX", -1, 1, 5, 3, Q("5.30268 mm")))
sketch13.addConstraint(Sketcher.Constraint("DistanceX", -1, 1, 0, 2, Q("5.181371 mm")))
sketch13.addConstraint(Sketcher.Constraint("DistanceX", -1, 1, 1, 2, Q("4.71564 mm")))
sketch13.addConstraint(Sketcher.Constraint("DistanceX", -1, 1, 2, 2, Q("4.52683 mm")))
pocket7 = body.newObject("PartDesign::Pocket", "Pocket006")
pocket7.Profile = sketch13
pocket7.Length = 0.35
pocket7.Reversed = True

# Sketch on YZ plane
sketch14 = body.newObject("Sketcher::SketchObject", "Sketch013")
sketch14.AttachmentSupport = (doc.getObject("YZ_Plane"), [""])
sketch14.MapMode = "FlatFace"
sketch14.AttachmentOffset = App.Placement(V(0, 0, 0.25), App.Rotation())
sketch14.addGeometry(Part.LineSegment(V(8, 7, 0), V(-4, 13, 0)), False)
sketch14.addGeometry(Part.LineSegment(V(-4, 13, 0), V(-8, 7, 0)), False)
sketch14.addGeometry(Part.LineSegment(V(-8, 7, 0), V(8, 7, 0)), False)
sketch14.addGeometry(Part.LineSegment(V(8, -7, 0), V(-8, -7, 0)), False)
sketch14.addGeometry(Part.LineSegment(V(-8, -7, 0), V(2, -11, 0)), False)
sketch14.addGeometry(Part.LineSegment(V(2, -11, 0), V(8, -7, 0)), False)
sketch14.addConstraint(Sketcher.Constraint("Coincident", 0, 2, 1, 1))
sketch14.addConstraint(Sketcher.Constraint("Coincident", 1, 2, 2, 1))
sketch14.addConstraint(Sketcher.Constraint("Coincident", 2, 2, 0, 1))
sketch14.addConstraint(Sketcher.Constraint("Coincident", 3, 2, 4, 1))
sketch14.addConstraint(Sketcher.Constraint("Coincident", 4, 2, 5, 1))
sketch14.addConstraint(Sketcher.Constraint("Coincident", 5, 2, 3, 1))
sketch14.addConstraint(Sketcher.Constraint("Horizontal", 2))
sketch14.addConstraint(Sketcher.Constraint("Horizontal", 3))
sketch14.addConstraint(Sketcher.Constraint("Symmetric", 2, 2, 3, 2, -1, 1))
sketch14.addConstraint(Sketcher.Constraint("Vertical", 1, 2, 3, 2))
sketch14.addConstraint(Sketcher.Constraint("Vertical", 2, 2, 5, 2))
sketch14.addConstraint(Sketcher.Constraint("Distance", 0, Q("13.288949 mm")))
sketch14.addConstraint(Sketcher.Constraint("Distance", 1, Q("7.215548 mm")))
sketch14.addConstraint(Sketcher.Constraint("Distance", 4, Q("11.156081 mm")))
sketch14.addConstraint(Sketcher.Constraint("DistanceX", 2, 1, 2, 2, Q("16.377856 mm")))
sketch14.addConstraint(Sketcher.Constraint("DistanceY", -1, 1, 0, 2, Q("12.721348 mm")))
sketch14.addConstraint(Sketcher.Constraint("DistanceX", 3, 2, 4, 2, Q("10.382471 mm")))
pocket8 = body.newObject("PartDesign::Pocket", "Pocket007")
pocket8.Profile = sketch14
pocket8.Type = "ThroughAll"
pocket8.Midplane = True

doc.recompute()
